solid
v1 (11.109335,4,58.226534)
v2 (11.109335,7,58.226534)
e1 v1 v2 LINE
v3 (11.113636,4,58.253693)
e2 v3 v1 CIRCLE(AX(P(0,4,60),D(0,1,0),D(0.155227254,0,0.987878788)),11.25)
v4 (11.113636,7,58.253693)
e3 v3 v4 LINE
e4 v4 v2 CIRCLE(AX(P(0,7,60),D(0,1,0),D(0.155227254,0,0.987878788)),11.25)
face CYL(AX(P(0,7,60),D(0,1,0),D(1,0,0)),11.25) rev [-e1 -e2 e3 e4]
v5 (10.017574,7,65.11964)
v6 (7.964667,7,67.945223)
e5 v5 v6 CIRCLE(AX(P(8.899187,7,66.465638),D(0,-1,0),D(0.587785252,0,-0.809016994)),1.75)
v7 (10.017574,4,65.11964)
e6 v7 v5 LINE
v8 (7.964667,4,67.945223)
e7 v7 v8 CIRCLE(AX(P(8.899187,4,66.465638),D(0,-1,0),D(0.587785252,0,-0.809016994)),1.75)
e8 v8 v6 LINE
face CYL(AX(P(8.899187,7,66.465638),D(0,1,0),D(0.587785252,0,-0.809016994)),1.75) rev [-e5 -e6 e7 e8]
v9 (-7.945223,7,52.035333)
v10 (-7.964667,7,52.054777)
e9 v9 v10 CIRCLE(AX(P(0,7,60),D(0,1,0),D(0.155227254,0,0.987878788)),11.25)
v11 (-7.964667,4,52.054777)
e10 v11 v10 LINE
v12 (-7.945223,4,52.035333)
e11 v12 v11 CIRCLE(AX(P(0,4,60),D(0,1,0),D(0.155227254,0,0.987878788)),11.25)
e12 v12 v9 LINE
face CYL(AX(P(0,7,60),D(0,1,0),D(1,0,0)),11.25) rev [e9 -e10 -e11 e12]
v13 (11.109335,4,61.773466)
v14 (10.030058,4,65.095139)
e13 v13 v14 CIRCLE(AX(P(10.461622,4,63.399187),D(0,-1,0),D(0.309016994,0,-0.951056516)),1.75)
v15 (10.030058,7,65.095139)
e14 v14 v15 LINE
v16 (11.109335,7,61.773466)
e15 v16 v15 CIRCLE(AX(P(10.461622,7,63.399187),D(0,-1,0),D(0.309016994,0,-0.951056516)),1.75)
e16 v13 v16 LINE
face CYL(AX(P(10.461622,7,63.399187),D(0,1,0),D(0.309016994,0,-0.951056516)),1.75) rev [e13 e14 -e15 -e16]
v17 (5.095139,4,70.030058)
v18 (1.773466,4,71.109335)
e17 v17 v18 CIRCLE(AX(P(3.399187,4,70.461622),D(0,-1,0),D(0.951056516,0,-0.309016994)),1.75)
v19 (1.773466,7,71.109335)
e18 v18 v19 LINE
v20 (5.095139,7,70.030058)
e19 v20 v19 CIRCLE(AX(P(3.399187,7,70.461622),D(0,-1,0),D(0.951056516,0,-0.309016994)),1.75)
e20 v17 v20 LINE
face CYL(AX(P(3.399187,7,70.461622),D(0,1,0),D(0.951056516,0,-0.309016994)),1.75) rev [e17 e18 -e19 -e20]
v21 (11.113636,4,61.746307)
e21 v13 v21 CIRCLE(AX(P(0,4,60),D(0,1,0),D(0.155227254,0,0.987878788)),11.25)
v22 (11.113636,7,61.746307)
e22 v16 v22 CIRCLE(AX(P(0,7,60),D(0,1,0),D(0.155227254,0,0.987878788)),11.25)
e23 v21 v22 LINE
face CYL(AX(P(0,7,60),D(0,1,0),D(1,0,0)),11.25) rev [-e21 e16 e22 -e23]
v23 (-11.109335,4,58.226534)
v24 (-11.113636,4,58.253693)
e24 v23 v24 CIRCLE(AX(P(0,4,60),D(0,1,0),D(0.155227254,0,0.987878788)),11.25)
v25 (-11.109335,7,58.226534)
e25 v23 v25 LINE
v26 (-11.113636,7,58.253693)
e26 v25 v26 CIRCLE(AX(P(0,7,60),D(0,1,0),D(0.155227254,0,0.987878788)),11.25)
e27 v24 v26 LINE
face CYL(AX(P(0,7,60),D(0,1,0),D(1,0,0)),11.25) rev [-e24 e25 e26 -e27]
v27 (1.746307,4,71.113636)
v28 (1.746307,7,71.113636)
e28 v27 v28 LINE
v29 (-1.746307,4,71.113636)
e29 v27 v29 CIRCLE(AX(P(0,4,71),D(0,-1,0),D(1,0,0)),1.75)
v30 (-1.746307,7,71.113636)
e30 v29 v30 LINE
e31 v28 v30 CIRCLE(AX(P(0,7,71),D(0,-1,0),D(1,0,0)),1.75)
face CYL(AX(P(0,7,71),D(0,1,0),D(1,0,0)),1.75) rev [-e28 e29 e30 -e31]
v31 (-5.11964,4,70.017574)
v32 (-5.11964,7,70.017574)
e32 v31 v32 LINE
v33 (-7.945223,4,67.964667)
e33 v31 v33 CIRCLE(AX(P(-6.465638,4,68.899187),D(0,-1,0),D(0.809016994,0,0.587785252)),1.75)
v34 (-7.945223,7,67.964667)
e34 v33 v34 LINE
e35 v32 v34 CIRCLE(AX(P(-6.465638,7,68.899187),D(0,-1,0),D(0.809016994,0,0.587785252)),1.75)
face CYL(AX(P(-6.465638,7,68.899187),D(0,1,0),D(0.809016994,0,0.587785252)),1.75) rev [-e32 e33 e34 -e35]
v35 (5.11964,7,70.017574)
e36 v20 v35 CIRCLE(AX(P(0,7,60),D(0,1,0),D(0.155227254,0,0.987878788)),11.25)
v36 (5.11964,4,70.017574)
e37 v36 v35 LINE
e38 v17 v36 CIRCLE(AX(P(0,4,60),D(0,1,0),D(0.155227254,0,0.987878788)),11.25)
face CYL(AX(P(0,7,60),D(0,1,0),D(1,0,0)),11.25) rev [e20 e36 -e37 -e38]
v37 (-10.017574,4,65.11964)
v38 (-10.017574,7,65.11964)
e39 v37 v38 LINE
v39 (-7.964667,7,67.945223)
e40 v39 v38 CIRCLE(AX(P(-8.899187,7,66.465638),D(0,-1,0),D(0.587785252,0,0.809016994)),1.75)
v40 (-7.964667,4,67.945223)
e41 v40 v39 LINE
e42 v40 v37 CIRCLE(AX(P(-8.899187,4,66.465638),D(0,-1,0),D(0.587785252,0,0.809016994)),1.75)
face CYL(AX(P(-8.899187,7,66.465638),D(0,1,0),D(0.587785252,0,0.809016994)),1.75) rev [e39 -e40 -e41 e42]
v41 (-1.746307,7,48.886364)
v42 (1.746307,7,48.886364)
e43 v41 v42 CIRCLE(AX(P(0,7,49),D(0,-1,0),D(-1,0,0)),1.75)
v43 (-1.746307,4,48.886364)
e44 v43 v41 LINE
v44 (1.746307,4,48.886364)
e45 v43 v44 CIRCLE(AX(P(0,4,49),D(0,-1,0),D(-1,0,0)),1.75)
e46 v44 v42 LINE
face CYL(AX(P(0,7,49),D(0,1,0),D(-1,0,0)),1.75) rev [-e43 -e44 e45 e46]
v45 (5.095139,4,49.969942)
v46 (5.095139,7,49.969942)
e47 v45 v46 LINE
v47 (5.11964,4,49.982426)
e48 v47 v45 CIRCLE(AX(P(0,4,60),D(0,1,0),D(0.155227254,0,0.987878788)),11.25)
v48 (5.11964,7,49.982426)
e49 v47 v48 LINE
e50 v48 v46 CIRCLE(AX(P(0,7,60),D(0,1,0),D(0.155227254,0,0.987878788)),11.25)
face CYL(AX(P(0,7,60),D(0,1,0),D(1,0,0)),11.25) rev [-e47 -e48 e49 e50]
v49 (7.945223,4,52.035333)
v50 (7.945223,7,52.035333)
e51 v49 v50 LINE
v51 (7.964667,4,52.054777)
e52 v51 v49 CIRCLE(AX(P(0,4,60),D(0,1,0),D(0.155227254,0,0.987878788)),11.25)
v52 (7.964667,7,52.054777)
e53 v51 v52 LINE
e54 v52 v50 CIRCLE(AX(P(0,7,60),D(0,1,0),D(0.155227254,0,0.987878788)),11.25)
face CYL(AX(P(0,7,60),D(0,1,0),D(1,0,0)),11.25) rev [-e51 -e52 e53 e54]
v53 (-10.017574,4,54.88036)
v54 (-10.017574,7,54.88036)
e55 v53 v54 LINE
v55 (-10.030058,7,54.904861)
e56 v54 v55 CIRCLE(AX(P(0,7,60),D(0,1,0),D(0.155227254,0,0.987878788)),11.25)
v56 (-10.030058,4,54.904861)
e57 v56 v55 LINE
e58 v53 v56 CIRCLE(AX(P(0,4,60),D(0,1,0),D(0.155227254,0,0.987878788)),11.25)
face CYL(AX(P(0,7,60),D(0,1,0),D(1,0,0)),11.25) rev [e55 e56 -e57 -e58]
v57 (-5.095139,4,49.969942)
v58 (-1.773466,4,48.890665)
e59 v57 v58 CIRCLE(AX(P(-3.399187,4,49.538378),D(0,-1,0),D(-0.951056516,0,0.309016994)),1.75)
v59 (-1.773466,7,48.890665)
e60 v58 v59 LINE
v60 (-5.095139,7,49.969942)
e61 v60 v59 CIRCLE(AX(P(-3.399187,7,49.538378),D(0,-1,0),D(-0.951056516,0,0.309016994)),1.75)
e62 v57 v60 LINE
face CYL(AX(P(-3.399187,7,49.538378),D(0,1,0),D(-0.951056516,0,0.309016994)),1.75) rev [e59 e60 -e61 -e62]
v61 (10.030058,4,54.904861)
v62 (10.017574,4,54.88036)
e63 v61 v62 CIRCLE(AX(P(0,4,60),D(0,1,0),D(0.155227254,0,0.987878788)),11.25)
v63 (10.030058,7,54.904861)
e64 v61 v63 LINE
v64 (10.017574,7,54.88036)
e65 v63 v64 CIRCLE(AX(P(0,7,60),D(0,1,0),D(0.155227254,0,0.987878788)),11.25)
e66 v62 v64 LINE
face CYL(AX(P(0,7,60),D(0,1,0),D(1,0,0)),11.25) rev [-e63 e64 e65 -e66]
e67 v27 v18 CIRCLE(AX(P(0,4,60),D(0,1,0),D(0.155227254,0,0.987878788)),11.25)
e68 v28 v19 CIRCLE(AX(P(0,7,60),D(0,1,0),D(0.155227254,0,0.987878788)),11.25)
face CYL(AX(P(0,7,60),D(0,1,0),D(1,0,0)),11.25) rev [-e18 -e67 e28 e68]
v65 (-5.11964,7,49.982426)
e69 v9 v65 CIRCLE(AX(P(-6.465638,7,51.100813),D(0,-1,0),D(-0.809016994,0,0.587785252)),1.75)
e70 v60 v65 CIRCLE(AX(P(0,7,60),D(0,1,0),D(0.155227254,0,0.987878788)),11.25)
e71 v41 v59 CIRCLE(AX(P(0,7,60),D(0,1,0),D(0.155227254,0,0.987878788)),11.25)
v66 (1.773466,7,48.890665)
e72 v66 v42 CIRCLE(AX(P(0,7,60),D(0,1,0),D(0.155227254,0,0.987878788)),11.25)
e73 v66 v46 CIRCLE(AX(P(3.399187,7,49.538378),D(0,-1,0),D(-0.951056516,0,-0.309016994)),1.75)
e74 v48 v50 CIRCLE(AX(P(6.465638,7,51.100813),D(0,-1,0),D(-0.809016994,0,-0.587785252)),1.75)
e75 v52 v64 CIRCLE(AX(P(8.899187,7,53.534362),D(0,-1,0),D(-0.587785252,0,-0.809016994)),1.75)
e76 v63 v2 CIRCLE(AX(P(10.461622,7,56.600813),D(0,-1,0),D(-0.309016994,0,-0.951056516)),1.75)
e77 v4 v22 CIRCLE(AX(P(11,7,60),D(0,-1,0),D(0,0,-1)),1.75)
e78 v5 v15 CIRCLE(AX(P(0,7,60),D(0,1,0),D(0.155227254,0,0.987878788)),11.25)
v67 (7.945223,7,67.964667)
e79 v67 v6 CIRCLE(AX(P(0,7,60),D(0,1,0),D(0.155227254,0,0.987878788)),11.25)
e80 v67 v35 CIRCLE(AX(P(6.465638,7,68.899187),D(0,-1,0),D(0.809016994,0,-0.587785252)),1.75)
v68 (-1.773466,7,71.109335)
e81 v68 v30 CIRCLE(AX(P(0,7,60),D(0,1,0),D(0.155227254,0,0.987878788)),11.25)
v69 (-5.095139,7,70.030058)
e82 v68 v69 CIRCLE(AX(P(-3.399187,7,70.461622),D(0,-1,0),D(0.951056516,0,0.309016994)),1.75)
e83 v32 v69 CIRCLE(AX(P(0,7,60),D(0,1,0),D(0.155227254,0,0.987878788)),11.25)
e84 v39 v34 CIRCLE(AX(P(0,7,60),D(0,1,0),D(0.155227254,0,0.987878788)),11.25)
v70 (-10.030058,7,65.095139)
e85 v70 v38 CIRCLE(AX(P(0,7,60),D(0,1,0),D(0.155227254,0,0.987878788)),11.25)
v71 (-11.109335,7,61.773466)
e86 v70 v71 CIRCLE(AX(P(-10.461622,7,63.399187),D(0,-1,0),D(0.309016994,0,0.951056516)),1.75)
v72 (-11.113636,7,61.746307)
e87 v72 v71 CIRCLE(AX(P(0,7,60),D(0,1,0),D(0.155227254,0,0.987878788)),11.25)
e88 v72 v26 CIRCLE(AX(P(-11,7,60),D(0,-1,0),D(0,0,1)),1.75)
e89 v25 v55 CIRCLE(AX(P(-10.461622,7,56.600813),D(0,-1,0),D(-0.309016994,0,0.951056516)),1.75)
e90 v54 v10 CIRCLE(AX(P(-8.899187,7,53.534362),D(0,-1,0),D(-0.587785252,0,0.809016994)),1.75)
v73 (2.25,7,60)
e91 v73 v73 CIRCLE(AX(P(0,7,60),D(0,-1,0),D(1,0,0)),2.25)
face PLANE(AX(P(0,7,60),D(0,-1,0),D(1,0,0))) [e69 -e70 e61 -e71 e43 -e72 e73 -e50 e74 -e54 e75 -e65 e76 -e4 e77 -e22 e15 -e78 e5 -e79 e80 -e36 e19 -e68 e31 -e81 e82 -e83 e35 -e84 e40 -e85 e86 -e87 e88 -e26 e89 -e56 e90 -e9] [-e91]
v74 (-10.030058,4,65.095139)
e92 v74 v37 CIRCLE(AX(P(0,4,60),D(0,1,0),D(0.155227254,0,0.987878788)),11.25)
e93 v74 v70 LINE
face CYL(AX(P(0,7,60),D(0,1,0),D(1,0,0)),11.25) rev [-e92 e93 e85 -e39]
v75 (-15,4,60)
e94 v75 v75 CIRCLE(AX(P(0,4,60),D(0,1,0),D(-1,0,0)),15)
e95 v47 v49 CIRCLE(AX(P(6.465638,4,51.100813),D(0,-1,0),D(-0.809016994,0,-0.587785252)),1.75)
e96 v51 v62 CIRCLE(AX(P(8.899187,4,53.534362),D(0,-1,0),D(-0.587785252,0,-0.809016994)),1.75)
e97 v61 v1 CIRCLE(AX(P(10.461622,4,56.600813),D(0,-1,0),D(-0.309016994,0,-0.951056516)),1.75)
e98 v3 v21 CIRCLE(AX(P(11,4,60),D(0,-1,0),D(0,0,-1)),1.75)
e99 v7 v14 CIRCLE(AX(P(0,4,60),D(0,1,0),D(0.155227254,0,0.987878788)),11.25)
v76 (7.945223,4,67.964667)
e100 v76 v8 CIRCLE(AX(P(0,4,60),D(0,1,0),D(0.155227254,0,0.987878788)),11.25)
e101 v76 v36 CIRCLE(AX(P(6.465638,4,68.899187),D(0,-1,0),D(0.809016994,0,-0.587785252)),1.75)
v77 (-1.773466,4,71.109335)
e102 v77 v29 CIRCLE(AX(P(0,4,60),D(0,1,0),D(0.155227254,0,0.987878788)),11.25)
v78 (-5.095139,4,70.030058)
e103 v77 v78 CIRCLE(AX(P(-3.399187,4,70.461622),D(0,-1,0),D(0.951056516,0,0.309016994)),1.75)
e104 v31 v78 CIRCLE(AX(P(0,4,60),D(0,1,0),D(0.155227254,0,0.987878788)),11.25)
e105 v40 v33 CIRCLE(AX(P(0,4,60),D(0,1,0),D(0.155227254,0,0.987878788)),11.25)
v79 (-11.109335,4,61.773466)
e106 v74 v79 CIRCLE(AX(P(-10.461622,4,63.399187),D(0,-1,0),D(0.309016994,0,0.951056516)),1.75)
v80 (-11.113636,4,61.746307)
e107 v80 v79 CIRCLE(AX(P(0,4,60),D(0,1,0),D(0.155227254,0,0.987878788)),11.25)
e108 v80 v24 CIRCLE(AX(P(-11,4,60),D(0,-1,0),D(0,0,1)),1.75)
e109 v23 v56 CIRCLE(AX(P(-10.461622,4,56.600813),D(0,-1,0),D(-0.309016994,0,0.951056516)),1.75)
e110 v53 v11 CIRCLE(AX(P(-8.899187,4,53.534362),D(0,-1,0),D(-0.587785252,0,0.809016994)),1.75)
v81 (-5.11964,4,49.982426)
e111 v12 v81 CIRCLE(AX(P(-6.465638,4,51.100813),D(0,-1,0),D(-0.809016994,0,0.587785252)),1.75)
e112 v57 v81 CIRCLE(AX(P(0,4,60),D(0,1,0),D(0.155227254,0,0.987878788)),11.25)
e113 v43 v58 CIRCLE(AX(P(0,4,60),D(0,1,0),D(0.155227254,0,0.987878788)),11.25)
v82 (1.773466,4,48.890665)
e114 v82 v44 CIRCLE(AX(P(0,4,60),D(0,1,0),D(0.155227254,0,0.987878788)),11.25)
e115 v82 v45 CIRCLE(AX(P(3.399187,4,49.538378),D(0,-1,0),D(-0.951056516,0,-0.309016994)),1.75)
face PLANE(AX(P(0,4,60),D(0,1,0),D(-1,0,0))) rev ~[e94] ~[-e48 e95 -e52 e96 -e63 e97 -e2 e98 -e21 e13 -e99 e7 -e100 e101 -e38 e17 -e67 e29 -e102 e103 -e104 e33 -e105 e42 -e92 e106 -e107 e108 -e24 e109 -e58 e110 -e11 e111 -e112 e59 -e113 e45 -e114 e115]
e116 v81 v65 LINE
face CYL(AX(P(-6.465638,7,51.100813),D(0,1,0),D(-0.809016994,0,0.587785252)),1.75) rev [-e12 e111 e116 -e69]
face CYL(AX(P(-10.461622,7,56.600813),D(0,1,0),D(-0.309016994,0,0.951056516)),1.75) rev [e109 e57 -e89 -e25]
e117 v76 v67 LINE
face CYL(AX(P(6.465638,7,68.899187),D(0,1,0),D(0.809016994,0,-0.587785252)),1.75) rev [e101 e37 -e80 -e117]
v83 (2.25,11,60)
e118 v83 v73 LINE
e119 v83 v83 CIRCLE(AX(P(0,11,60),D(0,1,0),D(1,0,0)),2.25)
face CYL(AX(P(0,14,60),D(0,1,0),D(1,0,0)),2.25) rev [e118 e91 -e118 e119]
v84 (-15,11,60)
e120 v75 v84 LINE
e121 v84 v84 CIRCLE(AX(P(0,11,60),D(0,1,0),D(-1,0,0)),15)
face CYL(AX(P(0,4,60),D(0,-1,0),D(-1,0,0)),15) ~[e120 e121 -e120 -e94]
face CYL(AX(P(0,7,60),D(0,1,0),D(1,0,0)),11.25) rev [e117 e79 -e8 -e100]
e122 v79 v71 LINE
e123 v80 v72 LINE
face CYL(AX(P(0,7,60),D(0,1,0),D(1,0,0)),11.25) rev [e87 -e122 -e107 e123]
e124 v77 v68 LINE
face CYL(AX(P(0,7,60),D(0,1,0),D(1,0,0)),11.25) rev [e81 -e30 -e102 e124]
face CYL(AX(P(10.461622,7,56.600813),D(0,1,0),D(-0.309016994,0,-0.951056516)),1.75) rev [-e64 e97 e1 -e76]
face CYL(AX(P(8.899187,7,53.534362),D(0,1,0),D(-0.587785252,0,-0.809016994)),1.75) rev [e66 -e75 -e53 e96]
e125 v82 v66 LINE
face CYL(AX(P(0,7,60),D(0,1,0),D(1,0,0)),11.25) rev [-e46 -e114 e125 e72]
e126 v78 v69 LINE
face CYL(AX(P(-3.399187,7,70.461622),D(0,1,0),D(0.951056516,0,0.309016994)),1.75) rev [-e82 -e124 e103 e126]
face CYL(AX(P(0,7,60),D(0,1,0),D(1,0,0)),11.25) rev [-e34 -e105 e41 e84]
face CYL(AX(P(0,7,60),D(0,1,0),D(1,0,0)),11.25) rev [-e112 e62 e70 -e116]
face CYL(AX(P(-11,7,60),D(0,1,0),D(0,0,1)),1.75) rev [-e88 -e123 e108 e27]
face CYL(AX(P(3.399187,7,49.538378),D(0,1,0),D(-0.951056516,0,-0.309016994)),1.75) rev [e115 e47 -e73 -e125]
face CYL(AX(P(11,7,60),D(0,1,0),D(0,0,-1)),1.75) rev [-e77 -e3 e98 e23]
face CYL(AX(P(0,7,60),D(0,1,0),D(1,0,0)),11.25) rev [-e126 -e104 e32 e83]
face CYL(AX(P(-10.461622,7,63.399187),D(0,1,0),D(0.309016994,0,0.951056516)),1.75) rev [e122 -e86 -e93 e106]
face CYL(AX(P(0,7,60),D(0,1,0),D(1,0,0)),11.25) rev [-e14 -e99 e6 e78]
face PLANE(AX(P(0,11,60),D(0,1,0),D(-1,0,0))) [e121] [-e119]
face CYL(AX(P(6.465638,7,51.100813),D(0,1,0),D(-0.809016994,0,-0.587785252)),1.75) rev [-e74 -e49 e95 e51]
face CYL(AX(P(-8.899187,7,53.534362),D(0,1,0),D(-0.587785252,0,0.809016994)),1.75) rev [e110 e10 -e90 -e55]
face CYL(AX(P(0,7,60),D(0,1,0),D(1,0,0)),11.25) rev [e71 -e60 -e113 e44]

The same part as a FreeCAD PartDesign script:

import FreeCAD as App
import Part
import Sketcher
Q = App.Units.Quantity

doc = App.newDocument("Part")
body = doc.addObject("PartDesign::Body", "Body")

sketch1 = doc.addObject("Sketcher::SketchObject", "Sketch")
body.addObject(sketch1)
sketch1.AttachmentSupport = (doc.XY_Plane, [""])
sketch1.MapMode = "FlatFace"
sketch1.AttachmentOffset = App.Placement(App.Vector(0, 0, 3), App.Rotation())
sketch1.addGeometry(Part.Circle(App.Vector(0, 0, 0), App.Vector(0, 0, 1), 15), False)
sketch1.addConstraint(Sketcher.Constraint("Coincident", 0, 3, -1, 1))
sketch1.addConstraint(Sketcher.Constraint("Diameter", 0, Q("30 mm")))
pad1 = doc.addObject("PartDesign::Pad", "Pad")
body.addObject(pad1)
pad1.Profile = sketch1
pad1.Length = 7
pad1.Reversed = True

sketch2 = doc.addObject("Sketcher::SketchObject", "Sketch001")
body.addObject(sketch2)
sketch2.AttachmentSupport = (doc.XY_Plane, [""])
sketch2.MapMode = "FlatFace"
sketch2.addGeometry(Part.Circle(App.Vector(0, 0, 0), App.Vector(0, 0, 1), 11), False)
sketch2.addConstraint(Sketcher.Constraint("Coincident", 0, 3, -1, 1))
sketch2.addConstraint(Sketcher.Constraint("Diameter", 0, Q("22.5 mm")))
pocket1 = doc.addObject("PartDesign::Pocket", "Pocket")
body.addObject(pocket1)
pocket1.Profile = sketch2
pocket1.Length = 3
pocket1.Reversed = True

sketch3 = doc.addObject("Sketcher::SketchObject", "Sketch002")
body.addObject(sketch3)
sketch3.AttachmentSupport = (doc.XY_Plane, [""])
sketch3.MapMode = "FlatFace"
sketch3.addGeometry(Part.Circle(App.Vector(0, 11, 0), App.Vector(0, 0, 1), 1.8), False)
sketch3.addConstraint(Sketcher.Constraint("PointOnObject", 0, 3, -2))
sketch3.addConstraint(Sketcher.Constraint("Diameter", 0, Q("3.5 mm")))
sketch3.addConstraint(Sketcher.Constraint("DistanceY", -1, 1, 0, 3, Q("11 mm")))
pocket2 = doc.addObject("PartDesign::Pocket", "Pocket001")
body.addObject(pocket2)
pocket2.Profile = sketch3
pocket2.Length = 3
pocket2.Reversed = True
doc.recompute()

polarpattern = doc.addObject("PartDesign::PolarPattern", "PolarPattern")
body.addObject(polarpattern)
polarpattern.Originals = [pocket2]
polarpattern.Axis = (doc.Z_Axis, [""])
polarpattern.Angle = 360
polarpattern.Occurrences = 20
body.Tip = polarpattern

sketch4 = doc.addObject("Sketcher::SketchObject", "Sketch003")
body.addObject(sketch4)
sketch4.AttachmentSupport = (doc.XY_Plane, [""])
sketch4.MapMode = "FlatFace"
sketch4.AttachmentOffset = App.Placement(App.Vector(0, 0, -7), App.Rotation())
sketch4.addGeometry(Part.Circle(App.Vector(0, 0, 0), App.Vector(0, 0, 1), 2.2), False)
sketch4.addConstraint(Sketcher.Constraint("Coincident", 0, 3, -1, 1))
sketch4.addConstraint(Sketcher.Constraint("Diameter", 0, Q("4.5 mm")))
pocket3 = doc.addObject("PartDesign::Pocket", "Pocket002")
body.addObject(pocket3)
pocket3.Profile = sketch4
pocket3.Length = 7
pocket3.Reversed = True
body2 = doc.addObject("PartDesign::Body", "Body001")
doc.recompute()

body.Placement = App.Placement(App.Vector(0, 7, 60), App.Rotation(App.Vector(1, 0, 0), 90))
boolean = doc.addObject("PartDesign::Boolean", "Boolean")
body2.addObject(boolean)
boolean.Type = "Fuse"
boolean.addObjects([body])

doc.recompute()
